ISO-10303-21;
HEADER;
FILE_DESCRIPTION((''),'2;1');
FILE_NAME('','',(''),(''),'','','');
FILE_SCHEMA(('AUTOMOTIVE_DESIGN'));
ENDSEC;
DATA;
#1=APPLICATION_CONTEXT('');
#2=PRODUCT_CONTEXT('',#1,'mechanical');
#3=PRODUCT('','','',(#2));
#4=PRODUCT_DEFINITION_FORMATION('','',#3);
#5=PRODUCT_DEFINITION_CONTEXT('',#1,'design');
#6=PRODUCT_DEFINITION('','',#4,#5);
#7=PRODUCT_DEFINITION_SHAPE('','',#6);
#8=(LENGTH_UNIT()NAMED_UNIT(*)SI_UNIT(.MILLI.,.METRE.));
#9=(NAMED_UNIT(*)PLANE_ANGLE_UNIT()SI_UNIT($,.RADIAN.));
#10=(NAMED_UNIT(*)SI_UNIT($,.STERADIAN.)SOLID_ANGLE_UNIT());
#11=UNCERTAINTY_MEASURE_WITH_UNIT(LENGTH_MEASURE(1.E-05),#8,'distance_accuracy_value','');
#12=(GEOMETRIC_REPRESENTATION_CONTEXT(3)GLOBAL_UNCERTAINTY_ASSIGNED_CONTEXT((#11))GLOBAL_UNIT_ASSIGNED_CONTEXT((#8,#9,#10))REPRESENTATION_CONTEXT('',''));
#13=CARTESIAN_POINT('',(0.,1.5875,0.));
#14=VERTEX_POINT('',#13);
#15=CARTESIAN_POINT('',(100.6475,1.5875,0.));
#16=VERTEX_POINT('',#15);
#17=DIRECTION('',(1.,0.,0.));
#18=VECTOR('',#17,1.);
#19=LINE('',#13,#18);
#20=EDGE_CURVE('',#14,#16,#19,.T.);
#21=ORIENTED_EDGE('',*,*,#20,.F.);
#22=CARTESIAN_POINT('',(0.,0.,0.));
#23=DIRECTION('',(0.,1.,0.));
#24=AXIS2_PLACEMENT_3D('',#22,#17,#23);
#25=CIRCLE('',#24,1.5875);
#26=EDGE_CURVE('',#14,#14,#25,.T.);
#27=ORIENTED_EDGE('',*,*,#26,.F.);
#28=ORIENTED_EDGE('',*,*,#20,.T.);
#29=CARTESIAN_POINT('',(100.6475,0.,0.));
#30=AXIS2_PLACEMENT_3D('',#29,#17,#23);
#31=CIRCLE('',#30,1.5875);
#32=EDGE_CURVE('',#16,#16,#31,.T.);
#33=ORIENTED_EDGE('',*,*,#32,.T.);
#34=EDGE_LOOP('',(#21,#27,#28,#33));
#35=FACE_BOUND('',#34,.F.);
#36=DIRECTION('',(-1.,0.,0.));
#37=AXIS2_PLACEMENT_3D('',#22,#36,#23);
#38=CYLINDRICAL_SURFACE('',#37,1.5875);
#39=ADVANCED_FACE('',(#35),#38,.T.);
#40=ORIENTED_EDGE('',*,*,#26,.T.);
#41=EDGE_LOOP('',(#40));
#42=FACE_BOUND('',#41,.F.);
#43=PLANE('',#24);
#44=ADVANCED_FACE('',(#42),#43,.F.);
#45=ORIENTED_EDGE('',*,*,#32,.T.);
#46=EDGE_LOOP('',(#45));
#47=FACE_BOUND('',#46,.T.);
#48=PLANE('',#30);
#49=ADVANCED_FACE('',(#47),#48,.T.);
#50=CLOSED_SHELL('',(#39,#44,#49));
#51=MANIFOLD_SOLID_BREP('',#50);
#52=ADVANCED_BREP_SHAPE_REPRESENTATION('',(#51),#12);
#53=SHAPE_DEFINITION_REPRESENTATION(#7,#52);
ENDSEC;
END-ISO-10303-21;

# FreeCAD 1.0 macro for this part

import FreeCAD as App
import Part
import Sketcher

V = App.Vector
Q = App.Units.Quantity

doc = App.newDocument("Part")
body = doc.addObject("PartDesign::Body", "Body")

# Sketch on YZ plane
sketch1 = doc.addObject("Sketcher::SketchObject", "Sketch")
body.addObject(sketch1)
sketch1.AttachmentSupport = (doc.YZ_Plane, [""])
sketch1.MapMode = "FlatFace"
sketch1.addGeometry(Part.Circle(V(0, 0, 0), V(0, 0, 1), 1.5875), False)
sketch1.addConstraint(Sketcher.Constraint("Coincident", 0, 3, -1, 1))
sketch1.addConstraint(Sketcher.Constraint("Diameter", 0, Q("0.125 in")))
pad1 = doc.addObject("PartDesign::Pad", "Pad")
body.addObject(pad1)
pad1.Profile = sketch1
pad1.Length = Q("3.9625 in")

doc.recompute()
